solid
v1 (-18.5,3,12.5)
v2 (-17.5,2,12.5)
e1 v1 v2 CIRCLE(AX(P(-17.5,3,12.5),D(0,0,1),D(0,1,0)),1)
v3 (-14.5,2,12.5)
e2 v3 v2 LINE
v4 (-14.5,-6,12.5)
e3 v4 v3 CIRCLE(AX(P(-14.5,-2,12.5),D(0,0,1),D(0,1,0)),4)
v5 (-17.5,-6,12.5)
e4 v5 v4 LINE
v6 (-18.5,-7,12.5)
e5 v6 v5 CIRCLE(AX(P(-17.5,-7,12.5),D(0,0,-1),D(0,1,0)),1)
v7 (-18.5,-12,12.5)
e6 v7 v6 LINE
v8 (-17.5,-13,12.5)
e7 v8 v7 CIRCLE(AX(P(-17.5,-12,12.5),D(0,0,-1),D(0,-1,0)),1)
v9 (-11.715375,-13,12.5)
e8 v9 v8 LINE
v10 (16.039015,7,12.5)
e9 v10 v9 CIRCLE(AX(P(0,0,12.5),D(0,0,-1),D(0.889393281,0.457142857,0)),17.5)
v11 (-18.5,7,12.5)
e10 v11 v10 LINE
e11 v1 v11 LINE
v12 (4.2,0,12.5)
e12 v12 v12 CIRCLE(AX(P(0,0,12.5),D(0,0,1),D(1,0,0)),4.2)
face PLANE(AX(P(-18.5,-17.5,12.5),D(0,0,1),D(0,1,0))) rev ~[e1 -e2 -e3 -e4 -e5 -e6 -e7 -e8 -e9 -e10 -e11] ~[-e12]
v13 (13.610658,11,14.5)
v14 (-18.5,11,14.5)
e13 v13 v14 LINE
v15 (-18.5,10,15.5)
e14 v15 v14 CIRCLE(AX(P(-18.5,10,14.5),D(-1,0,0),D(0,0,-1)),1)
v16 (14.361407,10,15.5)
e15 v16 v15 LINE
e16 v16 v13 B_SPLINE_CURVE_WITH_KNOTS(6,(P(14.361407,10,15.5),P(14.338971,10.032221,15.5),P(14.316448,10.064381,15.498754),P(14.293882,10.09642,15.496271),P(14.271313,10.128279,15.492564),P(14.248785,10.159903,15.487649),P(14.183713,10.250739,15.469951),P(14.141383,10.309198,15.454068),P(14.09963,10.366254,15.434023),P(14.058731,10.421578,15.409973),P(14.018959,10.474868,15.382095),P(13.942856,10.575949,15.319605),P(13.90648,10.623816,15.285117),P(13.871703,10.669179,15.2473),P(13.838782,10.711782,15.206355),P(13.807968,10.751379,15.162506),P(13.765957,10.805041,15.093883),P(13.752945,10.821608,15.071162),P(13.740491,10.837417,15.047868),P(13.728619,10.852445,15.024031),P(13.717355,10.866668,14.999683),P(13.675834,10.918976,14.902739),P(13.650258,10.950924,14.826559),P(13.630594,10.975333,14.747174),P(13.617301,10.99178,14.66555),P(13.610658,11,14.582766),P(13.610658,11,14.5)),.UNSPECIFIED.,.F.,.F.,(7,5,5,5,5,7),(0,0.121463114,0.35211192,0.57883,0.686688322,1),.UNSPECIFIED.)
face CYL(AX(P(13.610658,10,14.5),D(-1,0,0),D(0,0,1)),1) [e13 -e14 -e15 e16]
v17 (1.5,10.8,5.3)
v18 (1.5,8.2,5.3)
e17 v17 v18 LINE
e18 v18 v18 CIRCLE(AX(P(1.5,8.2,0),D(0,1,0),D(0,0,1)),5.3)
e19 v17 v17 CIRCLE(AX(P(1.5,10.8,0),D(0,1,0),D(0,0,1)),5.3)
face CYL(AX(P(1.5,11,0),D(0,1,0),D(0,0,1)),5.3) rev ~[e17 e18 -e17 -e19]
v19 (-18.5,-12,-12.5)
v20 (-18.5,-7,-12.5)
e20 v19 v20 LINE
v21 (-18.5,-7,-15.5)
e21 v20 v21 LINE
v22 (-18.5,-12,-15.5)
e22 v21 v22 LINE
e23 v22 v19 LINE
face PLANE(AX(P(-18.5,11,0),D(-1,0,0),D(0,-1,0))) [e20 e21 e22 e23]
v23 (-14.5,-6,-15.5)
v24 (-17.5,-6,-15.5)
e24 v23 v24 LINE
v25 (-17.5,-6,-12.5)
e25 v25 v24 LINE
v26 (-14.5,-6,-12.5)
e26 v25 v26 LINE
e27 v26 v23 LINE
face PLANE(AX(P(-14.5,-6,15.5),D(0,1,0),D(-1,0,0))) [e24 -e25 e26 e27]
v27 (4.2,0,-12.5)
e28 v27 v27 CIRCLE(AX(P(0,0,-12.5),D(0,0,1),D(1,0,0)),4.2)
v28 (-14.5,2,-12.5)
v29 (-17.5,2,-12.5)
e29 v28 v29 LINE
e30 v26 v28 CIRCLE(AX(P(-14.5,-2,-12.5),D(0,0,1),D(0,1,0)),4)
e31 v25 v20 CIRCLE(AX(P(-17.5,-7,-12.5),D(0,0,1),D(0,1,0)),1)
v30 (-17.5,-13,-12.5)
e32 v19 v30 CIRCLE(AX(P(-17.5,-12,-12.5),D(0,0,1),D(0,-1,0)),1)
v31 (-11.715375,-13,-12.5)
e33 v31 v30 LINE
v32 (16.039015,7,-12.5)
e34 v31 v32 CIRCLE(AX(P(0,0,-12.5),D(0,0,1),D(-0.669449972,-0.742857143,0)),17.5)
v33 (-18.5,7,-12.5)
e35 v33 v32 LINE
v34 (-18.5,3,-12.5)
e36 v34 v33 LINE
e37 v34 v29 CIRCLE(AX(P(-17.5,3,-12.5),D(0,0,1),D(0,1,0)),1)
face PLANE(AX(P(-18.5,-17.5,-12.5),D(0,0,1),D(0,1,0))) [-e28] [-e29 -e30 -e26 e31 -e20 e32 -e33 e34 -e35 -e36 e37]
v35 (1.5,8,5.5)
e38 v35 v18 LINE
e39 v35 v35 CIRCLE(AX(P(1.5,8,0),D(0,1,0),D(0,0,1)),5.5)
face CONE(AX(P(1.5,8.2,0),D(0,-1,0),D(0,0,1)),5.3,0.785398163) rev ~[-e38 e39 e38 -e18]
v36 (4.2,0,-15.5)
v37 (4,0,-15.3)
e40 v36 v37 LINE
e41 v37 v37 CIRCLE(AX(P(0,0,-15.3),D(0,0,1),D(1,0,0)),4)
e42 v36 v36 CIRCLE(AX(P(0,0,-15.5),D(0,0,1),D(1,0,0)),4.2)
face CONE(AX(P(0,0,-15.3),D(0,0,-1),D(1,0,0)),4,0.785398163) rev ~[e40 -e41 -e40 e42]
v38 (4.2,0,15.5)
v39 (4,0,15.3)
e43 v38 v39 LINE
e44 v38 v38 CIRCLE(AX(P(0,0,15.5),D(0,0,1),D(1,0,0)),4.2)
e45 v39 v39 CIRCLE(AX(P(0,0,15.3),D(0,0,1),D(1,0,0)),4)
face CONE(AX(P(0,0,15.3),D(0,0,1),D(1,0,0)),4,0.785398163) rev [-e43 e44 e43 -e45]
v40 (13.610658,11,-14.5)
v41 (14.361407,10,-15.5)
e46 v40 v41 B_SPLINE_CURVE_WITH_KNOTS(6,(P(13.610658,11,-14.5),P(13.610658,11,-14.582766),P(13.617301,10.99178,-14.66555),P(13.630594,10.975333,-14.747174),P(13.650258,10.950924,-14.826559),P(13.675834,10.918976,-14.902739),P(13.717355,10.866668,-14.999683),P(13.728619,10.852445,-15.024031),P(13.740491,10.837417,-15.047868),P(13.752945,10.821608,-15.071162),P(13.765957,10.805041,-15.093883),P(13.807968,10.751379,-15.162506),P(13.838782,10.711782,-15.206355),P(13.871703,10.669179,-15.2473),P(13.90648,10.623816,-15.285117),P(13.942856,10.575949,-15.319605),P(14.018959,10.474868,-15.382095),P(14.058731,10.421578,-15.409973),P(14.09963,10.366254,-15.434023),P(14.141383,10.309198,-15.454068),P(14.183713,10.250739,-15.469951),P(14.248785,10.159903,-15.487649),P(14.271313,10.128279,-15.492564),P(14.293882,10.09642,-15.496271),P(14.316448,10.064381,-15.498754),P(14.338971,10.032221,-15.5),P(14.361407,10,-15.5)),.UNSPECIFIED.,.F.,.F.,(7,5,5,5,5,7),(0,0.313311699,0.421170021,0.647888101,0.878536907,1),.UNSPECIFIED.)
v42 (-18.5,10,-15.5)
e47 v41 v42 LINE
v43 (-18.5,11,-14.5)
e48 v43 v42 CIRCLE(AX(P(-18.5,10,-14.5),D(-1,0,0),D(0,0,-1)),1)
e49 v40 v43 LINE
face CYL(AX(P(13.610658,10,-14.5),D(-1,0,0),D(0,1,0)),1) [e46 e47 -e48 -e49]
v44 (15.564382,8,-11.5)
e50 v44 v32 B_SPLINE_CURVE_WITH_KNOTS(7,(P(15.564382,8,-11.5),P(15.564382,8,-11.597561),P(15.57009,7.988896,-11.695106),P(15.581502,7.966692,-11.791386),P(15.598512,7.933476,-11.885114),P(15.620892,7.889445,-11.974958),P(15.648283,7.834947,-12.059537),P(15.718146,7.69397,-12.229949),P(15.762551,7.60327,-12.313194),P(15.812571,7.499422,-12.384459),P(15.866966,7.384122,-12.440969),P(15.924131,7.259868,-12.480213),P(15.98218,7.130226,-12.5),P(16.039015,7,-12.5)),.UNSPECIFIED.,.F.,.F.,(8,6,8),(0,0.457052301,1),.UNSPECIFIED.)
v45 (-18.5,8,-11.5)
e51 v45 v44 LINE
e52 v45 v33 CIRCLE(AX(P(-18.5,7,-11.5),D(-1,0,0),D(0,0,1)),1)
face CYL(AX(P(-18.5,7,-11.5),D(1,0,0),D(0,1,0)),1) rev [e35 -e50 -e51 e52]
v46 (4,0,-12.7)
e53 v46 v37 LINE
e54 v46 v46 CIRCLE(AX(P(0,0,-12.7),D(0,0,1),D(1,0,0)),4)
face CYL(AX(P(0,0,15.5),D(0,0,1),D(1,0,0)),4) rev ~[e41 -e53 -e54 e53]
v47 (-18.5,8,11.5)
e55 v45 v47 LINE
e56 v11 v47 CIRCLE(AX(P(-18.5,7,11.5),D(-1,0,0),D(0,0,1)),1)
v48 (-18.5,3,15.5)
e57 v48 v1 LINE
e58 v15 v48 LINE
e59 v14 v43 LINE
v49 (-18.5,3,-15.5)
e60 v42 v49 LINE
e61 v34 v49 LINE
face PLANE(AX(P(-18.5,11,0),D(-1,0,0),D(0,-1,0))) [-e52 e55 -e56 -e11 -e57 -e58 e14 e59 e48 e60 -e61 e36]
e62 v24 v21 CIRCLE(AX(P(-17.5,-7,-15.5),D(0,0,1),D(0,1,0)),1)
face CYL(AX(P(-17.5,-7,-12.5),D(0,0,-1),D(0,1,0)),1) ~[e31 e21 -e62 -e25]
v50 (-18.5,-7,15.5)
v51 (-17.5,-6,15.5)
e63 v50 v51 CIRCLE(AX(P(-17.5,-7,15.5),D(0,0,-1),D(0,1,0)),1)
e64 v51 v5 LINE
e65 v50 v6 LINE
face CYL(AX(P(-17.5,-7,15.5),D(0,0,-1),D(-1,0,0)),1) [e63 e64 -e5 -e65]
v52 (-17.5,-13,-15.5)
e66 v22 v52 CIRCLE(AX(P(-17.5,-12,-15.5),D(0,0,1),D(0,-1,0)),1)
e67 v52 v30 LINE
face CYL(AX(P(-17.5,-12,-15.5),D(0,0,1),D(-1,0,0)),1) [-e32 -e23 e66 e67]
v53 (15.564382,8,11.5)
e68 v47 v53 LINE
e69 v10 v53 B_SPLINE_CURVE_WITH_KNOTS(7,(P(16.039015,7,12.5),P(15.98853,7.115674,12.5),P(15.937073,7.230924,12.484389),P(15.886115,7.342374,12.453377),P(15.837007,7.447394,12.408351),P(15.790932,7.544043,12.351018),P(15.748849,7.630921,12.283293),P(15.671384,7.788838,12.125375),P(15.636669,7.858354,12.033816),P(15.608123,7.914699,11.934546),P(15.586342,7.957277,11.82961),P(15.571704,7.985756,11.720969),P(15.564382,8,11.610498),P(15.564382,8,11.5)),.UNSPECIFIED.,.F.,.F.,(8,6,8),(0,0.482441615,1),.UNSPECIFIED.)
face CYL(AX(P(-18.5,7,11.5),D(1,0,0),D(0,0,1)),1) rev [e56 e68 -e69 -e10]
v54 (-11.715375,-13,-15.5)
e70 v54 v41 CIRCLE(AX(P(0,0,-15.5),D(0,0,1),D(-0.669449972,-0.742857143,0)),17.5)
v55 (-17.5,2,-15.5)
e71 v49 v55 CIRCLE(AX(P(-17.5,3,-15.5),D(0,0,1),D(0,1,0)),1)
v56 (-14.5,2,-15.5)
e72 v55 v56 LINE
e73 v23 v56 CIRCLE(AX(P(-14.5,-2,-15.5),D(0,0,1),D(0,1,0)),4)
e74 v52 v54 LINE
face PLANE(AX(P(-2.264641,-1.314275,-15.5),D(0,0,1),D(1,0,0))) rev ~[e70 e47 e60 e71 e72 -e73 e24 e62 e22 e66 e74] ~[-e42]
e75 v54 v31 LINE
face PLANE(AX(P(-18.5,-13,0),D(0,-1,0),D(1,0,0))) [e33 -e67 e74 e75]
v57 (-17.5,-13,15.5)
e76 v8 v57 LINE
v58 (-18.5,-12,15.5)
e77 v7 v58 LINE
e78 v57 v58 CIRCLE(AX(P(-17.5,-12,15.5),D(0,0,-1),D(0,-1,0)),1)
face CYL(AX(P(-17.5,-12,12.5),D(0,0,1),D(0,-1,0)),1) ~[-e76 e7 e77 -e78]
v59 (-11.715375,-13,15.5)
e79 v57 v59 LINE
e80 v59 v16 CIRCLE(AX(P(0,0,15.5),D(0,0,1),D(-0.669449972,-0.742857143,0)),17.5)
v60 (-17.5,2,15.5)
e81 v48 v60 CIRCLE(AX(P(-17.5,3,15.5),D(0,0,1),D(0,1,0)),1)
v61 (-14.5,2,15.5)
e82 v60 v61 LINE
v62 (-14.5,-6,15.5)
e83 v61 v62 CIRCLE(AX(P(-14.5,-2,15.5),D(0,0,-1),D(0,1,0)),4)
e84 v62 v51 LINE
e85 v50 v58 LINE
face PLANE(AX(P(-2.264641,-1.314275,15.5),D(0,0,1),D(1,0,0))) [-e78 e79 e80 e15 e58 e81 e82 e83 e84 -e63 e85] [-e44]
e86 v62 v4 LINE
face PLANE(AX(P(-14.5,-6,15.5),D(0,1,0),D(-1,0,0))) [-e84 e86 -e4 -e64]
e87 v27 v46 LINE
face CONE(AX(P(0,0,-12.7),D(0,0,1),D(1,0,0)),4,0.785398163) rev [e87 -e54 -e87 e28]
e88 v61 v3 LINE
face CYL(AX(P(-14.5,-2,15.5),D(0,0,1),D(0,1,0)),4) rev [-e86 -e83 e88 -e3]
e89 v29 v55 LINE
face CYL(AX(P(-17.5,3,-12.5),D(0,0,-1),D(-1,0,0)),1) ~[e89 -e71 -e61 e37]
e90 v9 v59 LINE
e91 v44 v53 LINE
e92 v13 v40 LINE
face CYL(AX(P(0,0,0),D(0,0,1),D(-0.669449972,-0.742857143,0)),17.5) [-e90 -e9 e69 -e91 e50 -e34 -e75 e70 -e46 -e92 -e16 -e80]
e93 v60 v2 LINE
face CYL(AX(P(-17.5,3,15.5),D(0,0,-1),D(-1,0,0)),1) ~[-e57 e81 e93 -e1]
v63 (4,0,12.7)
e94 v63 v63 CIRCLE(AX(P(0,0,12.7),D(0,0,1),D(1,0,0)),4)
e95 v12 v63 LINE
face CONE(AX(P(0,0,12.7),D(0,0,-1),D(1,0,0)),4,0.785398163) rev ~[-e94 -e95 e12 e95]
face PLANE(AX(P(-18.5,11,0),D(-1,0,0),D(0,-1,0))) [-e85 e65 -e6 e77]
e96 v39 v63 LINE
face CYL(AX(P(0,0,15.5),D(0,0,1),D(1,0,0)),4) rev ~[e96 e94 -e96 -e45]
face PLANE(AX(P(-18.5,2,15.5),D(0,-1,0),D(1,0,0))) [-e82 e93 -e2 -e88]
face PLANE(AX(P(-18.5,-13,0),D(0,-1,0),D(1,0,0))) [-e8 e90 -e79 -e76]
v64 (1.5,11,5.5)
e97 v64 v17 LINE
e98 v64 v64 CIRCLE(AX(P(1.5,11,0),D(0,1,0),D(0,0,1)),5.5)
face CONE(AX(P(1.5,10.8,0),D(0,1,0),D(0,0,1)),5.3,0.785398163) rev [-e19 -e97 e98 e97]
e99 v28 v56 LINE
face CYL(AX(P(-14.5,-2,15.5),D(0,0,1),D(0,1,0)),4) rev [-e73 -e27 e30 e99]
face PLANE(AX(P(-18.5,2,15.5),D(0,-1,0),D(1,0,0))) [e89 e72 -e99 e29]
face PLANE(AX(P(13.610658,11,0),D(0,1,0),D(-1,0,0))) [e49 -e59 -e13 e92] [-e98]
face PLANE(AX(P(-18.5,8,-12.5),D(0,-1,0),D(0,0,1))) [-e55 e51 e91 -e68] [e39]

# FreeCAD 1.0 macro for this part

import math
import FreeCAD as App
import Part
import Sketcher
Q = App.Units.Quantity


def edges_at(feature, points):
    """Names of the edges that pass closest to the given points."""
    edges = feature.Shape.Edges
    near = lambda p: min(range(len(edges)), key=lambda i: edges[i].distToShape(Part.Vertex(*p))[0])
    return sorted({f"Edge{near(p) + 1}" for p in points})

doc = App.newDocument("Part")
params = doc.addObject("Spreadsheet::Sheet", "Params")
for row, (alias, value) in enumerate([
    ("sketch1_radius", "17.5 mm"),
    ("sketch1_height", "24 mm"),
    ("pad1_length", "31 mm"),
    ("sketch2_diameter", "8 mm"),
    ("sketch2_width", "4 mm"),
    ("sketch3_height", "25 mm"),
    ("sketch3_width", "25.5 mm"),
    ("sketch4_diameter", "10.6 mm"),
    ("fillet_radius", "1 mm"),
    ("fillet2_radius", "1 mm"),
    ("chamfer_size", "0.2 mm"),
], start=1):
    params.set(f"A{row}", alias)
    params.set(f"B{row}", "=" + value)
    params.setAlias(f"B{row}", alias)

body = doc.addObject("PartDesign::Body", "Body")

# Sketch on XY plane
sketch1 = doc.addObject("Sketcher::SketchObject", "Sketch")
body.addObject(sketch1)
sketch1.AttachmentSupport = (doc.XY_Plane, [""])
sketch1.MapMode = "FlatFace"
sketch1.addGeometry([
    Part.LineSegment(App.Vector(-18.5, 11, 0), App.Vector(-18.5, -13, 0)),
    Part.LineSegment(App.Vector(-18.5, -13, 0), App.Vector(-11.715375, -13, 0)),
    Part.ArcOfCircle(Part.Circle(App.Vector(0, 0, 0), App.Vector(0, 0, 1), 17.5), math.radians(-132.024628), math.radians(38.944804)),
    Part.LineSegment(App.Vector(13.610658, 11, 0), App.Vector(-18.5, 11, 0)),
], False)
sketch1.addConstraint([
    Sketcher.Constraint("Coincident", 0, 2, 1, 1),
    Sketcher.Constraint("Coincident", 1, 2, 2, 1),
    Sketcher.Constraint("Coincident", 2, 2, 3, 1),
    Sketcher.Constraint("Coincident", 3, 2, 0, 1),
    Sketcher.Constraint("Vertical", 0),
    Sketcher.Constraint("Horizontal", 1),
    Sketcher.Constraint("Horizontal", 3),
    Sketcher.Constraint("Coincident", 2, 3, -1, 1),
    Sketcher.Constraint("Radius", 2, Q("17.5 mm")),
    Sketcher.Constraint("DistanceY", 0, 2, 0, 1, Q("24 mm")),
    Sketcher.Constraint("DistanceY", 0, 2, -1, 1, Q("13 mm")),
    Sketcher.Constraint("DistanceX", 0, 2, -1, 1, Q("18.5 mm")),
])
sketch1.setExpression("Constraints[8]", "Params.sketch1_radius")
sketch1.setExpression("Constraints[9]", "Params.sketch1_height")
pad1 = doc.addObject("PartDesign::Pad", "Pad")
body.addObject(pad1)
pad1.Profile = sketch1
pad1.setExpression("Length", "Params.pad1_length")
pad1.Midplane = True

# Sketch on XY plane
sketch2 = doc.addObject("Sketcher::SketchObject", "Sketch001")
body.addObject(sketch2)
sketch2.AttachmentSupport = (doc.XY_Plane, [""])
sketch2.MapMode = "FlatFace"
sketch2.AttachmentOffset = App.Placement(App.Vector(0, 0, 15.5), App.Rotation())
sketch2.addGeometry([
    Part.Circle(App.Vector(0, 0, 0), App.Vector(0, 0, 1), 4),  # 0
    Part.LineSegment(App.Vector(-14.5, 2, 0), App.Vector(-18.5, 2, 0)),  # 1
    Part.LineSegment(App.Vector(-18.5, 2, 0), App.Vector(-18.5, -6, 0)),  # 2
    Part.LineSegment(App.Vector(-18.5, -6, 0), App.Vector(-14.5, -6, 0)),  # 3
    Part.ArcOfCircle(Part.Circle(App.Vector(-14.5, -2, 0), App.Vector(0, 0, 1), 4), math.radians(-90), math.radians(90)),  # 4
], False)
sketch2.addConstraint([
    Sketcher.Constraint("Coincident", 1, 2, 2, 1),
    Sketcher.Constraint("Coincident", 2, 2, 3, 1),
    Sketcher.Constraint("Tangent", 3, 2, 4, 1),
    Sketcher.Constraint("Tangent", 4, 2, 1, 1),
    Sketcher.Constraint("Horizontal", 1),
    Sketcher.Constraint("Vertical", 2),
    Sketcher.Constraint("Horizontal", 3),
    Sketcher.Constraint("Coincident", 0, 3, -1, 1),
    Sketcher.Constraint("Equal", 0, 4),
    Sketcher.Constraint("Diameter", 0, Q("8 mm")),
    Sketcher.Constraint("DistanceX", 1, 2, 1, 1, Q("4 mm")),
    Sketcher.Constraint("DistanceY", 4, 3, -1, 1, Q("2 mm")),
    Sketcher.Constraint("DistanceX", 4, 3, -1, 1, Q("14.5 mm")),
])
sketch2.setExpression("Constraints[9]", "Params.sketch2_diameter")
sketch2.setExpression("Constraints[10]", "Params.sketch2_width")
pocket1 = doc.addObject("PartDesign::Pocket", "Pocket")
body.addObject(pocket1)
pocket1.Profile = sketch2
pocket1.Type = "ThroughAll"

# Sketch on YZ plane
sketch3 = doc.addObject("Sketcher::SketchObject", "Sketch002")
body.addObject(sketch3)
sketch3.AttachmentSupport = (doc.YZ_Plane, [""])
sketch3.MapMode = "FlatFace"
sketch3.AttachmentOffset = App.Placement(App.Vector(0, 0, -18.5), App.Rotation())
sketch3.addGeometry([
    Part.LineSegment(App.Vector(8, -12.5, 0), App.Vector(-17.5, -12.5, 0)),
    Part.LineSegment(App.Vector(-17.5, -12.5, 0), App.Vector(-17.5, 12.5, 0)),
    Part.LineSegment(App.Vector(-17.5, 12.5, 0), App.Vector(8, 12.5, 0)),
    Part.LineSegment(App.Vector(8, 12.5, 0), App.Vector(8, -12.5, 0)),
], False)
sketch3.addConstraint([
    Sketcher.Constraint("Coincident", 0, 2, 1, 1),
    Sketcher.Constraint("Coincident", 1, 2, 2, 1),
    Sketcher.Constraint("Coincident", 2, 2, 3, 1),
    Sketcher.Constraint("Coincident", 3, 2, 0, 1),
    Sketcher.Constraint("Horizontal", 0),
    Sketcher.Constraint("Vertical", 1),
    Sketcher.Constraint("Horizontal", 2),
    Sketcher.Constraint("Vertical", 3),
    Sketcher.Constraint("DistanceY", 1, 1, 1, 2, Q("25 mm")),
    Sketcher.Constraint("DistanceX", 0, 2, 0, 1, Q("25.5 mm")),
    Sketcher.Constraint("DistanceX", -1, 1, 2, 2, Q("8 mm")),
    Sketcher.Constraint("DistanceY", 0, 2, -1, 1, Q("12.5 mm")),
])
sketch3.setExpression("Constraints[8]", "Params.sketch3_height")
sketch3.setExpression("Constraints[9]", "Params.sketch3_width")
pocket2 = doc.addObject("PartDesign::Pocket", "Pocket001")
body.addObject(pocket2)
pocket2.Profile = sketch3
pocket2.Type = "ThroughAll"
pocket2.Reversed = True

# Sketch on XZ plane
sketch4 = doc.addObject("Sketcher::SketchObject", "Sketch003")
body.addObject(sketch4)
sketch4.AttachmentSupport = (doc.XZ_Plane, [""])
sketch4.MapMode = "FlatFace"
sketch4.AttachmentOffset = App.Placement(App.Vector(0, 0, -11), App.Rotation())
sketch4.addGeometry(Part.Circle(App.Vector(1.5, 0, 0), App.Vector(0, 0, 1), 5.3), False)
sketch4.addConstraint([
    Sketcher.Constraint("PointOnObject", 0, 3, -1),
    Sketcher.Constraint("Diameter", 0, Q("10.6 mm")),
    Sketcher.Constraint("DistanceX", -1, 1, 0, 3, Q("1.5 mm")),
])
sketch4.setExpression("Constraints[1]", "Params.sketch4_diameter")
pocket3 = doc.addObject("PartDesign::Pocket", "Pocket002")
body.addObject(pocket3)
pocket3.Profile = sketch4
pocket3.Type = "UpToFirst"
pocket3.Reversed = True
doc.recompute()

fillet = doc.addObject("PartDesign::Fillet", "Fillet")
body.addObject(fillet)
fillet.Base = (pocket3, edges_at(pocket3, [
    (-18.5, -6, -14),
    (-18.5, 2, -14),
    (-18.5, -6, 14),
    (-18.5, 2, 14),
    (-18.5, -13, -14),
    (-18.5, -13, 14),
]))
fillet.setExpression("Radius", "Params.fillet_radius")
doc.recompute()

fillet2 = doc.addObject("PartDesign::Fillet", "Fillet001")
body.addObject(fillet2)
fillet2.Base = (fillet, edges_at(fillet, [
    (-2.445, 11, 15.5),
    (-1.468, 8, -12.5),
    (-1.468, 8, 12.5),
    (-2.445, 11, -15.5),
]))
fillet2.setExpression("Radius", "Params.fillet2_radius")
doc.recompute()

chamfer = doc.addObject("PartDesign::Chamfer", "Chamfer")
body.addObject(chamfer)
chamfer.Base = (fillet2, edges_at(fillet2, [
    (-4, 0, -15.5),
    (-4, 0, 15.5),
    (-4, 0, -12.5),
    (-4, 0, 12.5),
    (1.5, 11, -5.3),
    (1.5, 8, -5.3),
]))
chamfer.setExpression("Size", "Params.chamfer_size")

doc.recompute()
